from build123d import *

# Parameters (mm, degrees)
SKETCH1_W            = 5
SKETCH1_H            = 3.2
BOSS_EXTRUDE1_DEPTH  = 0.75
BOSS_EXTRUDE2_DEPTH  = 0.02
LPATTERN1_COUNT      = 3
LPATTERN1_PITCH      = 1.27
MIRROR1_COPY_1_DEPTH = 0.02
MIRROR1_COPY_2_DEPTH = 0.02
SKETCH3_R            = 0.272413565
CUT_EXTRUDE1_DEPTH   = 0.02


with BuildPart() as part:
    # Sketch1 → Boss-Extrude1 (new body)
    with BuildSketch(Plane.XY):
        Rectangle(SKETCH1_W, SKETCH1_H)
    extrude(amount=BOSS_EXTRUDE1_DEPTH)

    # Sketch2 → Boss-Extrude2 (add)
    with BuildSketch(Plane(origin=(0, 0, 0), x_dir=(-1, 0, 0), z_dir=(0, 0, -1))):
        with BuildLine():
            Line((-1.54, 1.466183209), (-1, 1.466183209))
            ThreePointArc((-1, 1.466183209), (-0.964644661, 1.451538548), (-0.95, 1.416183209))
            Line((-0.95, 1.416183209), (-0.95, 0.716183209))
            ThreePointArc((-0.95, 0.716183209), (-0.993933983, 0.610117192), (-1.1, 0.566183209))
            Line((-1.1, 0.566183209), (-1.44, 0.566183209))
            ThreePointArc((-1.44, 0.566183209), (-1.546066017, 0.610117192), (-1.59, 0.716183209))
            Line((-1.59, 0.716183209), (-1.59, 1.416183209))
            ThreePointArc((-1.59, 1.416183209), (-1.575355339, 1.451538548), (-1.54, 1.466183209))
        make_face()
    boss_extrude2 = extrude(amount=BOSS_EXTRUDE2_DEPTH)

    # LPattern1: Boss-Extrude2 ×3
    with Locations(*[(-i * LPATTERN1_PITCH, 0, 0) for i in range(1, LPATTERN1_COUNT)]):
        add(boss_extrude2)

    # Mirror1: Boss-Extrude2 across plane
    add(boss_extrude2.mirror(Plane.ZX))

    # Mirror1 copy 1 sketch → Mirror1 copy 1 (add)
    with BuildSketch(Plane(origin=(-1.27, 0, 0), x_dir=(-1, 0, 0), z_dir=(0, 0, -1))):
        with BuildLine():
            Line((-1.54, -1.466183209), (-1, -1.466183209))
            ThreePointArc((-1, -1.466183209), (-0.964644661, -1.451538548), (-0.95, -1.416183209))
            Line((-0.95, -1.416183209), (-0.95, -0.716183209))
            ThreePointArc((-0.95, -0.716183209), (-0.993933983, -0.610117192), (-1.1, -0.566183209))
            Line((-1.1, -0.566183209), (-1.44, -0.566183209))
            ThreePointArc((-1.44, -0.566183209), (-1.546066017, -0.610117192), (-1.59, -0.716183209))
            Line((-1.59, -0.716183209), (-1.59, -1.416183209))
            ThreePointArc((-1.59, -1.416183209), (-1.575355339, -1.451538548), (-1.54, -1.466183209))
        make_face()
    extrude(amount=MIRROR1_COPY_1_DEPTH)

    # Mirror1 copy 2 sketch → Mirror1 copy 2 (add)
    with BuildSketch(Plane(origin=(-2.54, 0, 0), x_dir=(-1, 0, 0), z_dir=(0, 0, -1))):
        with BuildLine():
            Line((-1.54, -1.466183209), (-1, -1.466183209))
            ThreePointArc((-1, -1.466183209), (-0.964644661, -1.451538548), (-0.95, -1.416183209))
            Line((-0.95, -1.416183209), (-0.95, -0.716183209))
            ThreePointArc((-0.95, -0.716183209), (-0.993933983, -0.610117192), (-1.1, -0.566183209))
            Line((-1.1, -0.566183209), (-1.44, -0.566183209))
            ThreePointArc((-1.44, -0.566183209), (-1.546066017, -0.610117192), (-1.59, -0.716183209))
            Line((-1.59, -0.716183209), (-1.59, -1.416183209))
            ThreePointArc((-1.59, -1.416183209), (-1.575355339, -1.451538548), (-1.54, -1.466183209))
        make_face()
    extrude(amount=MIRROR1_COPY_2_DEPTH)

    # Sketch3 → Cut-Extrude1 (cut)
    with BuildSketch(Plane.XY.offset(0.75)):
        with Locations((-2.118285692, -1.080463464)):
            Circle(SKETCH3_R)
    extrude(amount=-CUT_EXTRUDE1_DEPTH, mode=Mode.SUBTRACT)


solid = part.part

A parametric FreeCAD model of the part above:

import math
import FreeCAD as App
import Part
import Sketcher

V = App.Vector
Q = App.Units.Quantity

doc = App.newDocument("Part")
params = doc.addObject("Spreadsheet::Sheet", "Params")
for row, (alias, value) in enumerate([
    ("sketch1_width", "5 mm"),
    ("sketch1_height", "3.2 mm"),
    ("pad1_length", "0.75 mm"),
    ("sketch2_radius", "0.05 mm"),
    ("sketch2_radius2", "0.15 mm"),
    ("sketch2_height", "0.7 mm"),
    ("sketch2_width", "0.54 mm"),
    ("pad2_length", "0.02 mm"),
    ("linearpattern_pitch", "1.27 mm"),
    ("sketch3_radius", "0.05 mm"),
    ("sketch3_radius2", "0.15 mm"),
    ("sketch3_height", "0.7 mm"),
    ("sketch3_width", "0.54 mm"),
    ("pad3_length", "0.02 mm"),
    ("sketch4_radius", "0.05 mm"),
    ("sketch4_radius2", "0.15 mm"),
    ("sketch4_height", "0.7 mm"),
    ("sketch4_width", "0.54 mm"),
    ("pad4_length", "0.02 mm"),
    ("pocket1_length", "0.02 mm"),
], start=1):
    params.set(f"A{row}", alias)
    params.set(f"B{row}", "=" + value)
    params.setAlias(f"B{row}", alias)

body = doc.addObject("PartDesign::Body", "Body")

sketch1 = body.newObject("Sketcher::SketchObject", "Sketch")
sketch1.AttachmentSupport = (doc.getObject("XY_Plane"), [""])
sketch1.MapMode = "FlatFace"
sketch1.addGeometry(Part.LineSegment(V(-2.5, 1.6, 0), V(-2.5, -1.6, 0)), False)
sketch1.addGeometry(Part.LineSegment(V(-2.5, -1.6, 0), V(2.5, -1.6, 0)), False)
sketch1.addGeometry(Part.LineSegment(V(2.5, -1.6, 0), V(2.5, 1.6, 0)), False)
sketch1.addGeometry(Part.LineSegment(V(2.5, 1.6, 0), V(-2.5, 1.6, 0)), False)
sketch1.addConstraint(Sketcher.Constraint("Coincident", 0, 2, 1, 1))
sketch1.addConstraint(Sketcher.Constraint("Coincident", 1, 2, 2, 1))
sketch1.addConstraint(Sketcher.Constraint("Coincident", 2, 2, 3, 1))
sketch1.addConstraint(Sketcher.Constraint("Coincident", 3, 2, 0, 1))
sketch1.addConstraint(Sketcher.Constraint("Vertical", 0))
sketch1.addConstraint(Sketcher.Constraint("Horizontal", 1))
sketch1.addConstraint(Sketcher.Constraint("Vertical", 2))
sketch1.addConstraint(Sketcher.Constraint("Horizontal", 3))
sketch1.addConstraint(Sketcher.Constraint("Symmetric", 0, 2, 2, 2, -1, 1))
sketch1.addConstraint(Sketcher.Constraint("DistanceX", 1, 1, 1, 2, Q("5 mm")))
sketch1.addConstraint(Sketcher.Constraint("DistanceY", 0, 2, 0, 1, Q("3.2 mm")))
sketch1.setExpression("Constraints[9]", "Params.sketch1_width")
sketch1.setExpression("Constraints[10]", "Params.sketch1_height")
pad1 = body.newObject("PartDesign::Pad", "Pad")
pad1.Profile = sketch1
pad1.setExpression("Length", "Params.pad1_length")

sketch2 = body.newObject("Sketcher::SketchObject", "Sketch001")
sketch2.AttachmentSupport = (doc.getObject("XY_Plane"), [""])
sketch2.MapMode = "FlatFace"
sketch2.addGeometry(Part.LineSegment(V(1, 1.466183, 0), V(1.54, 1.466183, 0)), False)
sketch2.addGeometry(Part.ArcOfCircle(Part.Circle(V(1.54, 1.416183, 0), V(0, 0, 1), 0.05), math.radians(0), math.radians(90)), False)
sketch2.addGeometry(Part.LineSegment(V(1.59, 1.416183, 0), V(1.59, 0.716183, 0)), False)
sketch2.addGeometry(Part.ArcOfCircle(Part.Circle(V(1.44, 0.716183, 0), V(0, 0, 1), 0.15), math.radians(-90), math.radians(0)), False)
sketch2.addGeometry(Part.LineSegment(V(1.44, 0.566183, 0), V(1.1, 0.566183, 0)), False)
sketch2.addGeometry(Part.ArcOfCircle(Part.Circle(V(1.1, 0.716183, 0), V(0, 0, 1), 0.15), math.radians(-180), math.radians(-90)), False)
sketch2.addGeometry(Part.LineSegment(V(0.95, 0.716183, 0), V(0.95, 1.416183, 0)), False)
sketch2.addGeometry(Part.ArcOfCircle(Part.Circle(V(1, 1.416183, 0), V(0, 0, 1), 0.05), math.radians(90), math.radians(180)), False)
sketch2.addConstraint(Sketcher.Constraint("Tangent", 0, 2, 1, 2))
sketch2.addConstraint(Sketcher.Constraint("Tangent", 1, 1, 2, 1))
sketch2.addConstraint(Sketcher.Constraint("Tangent", 2, 2, 3, 2))
sketch2.addConstraint(Sketcher.Constraint("Tangent", 3, 1, 4, 1))
sketch2.addConstraint(Sketcher.Constraint("Tangent", 4, 2, 5, 2))
sketch2.addConstraint(Sketcher.Constraint("Tangent", 5, 1, 6, 1))
sketch2.addConstraint(Sketcher.Constraint("Tangent", 6, 2, 7, 2))
sketch2.addConstraint(Sketcher.Constraint("Tangent", 7, 1, 0, 1))
sketch2.addConstraint(Sketcher.Constraint("Horizontal", 0))
sketch2.addConstraint(Sketcher.Constraint("Vertical", 2))
sketch2.addConstraint(Sketcher.Constraint("Horizontal", 4))
sketch2.addConstraint(Sketcher.Constraint("Vertical", 6))
sketch2.addConstraint(Sketcher.Constraint("Equal", 3, 5))
sketch2.addConstraint(Sketcher.Constraint("Equal", 1, 7))
sketch2.addConstraint(Sketcher.Constraint("Radius", 1, Q("0.05 mm")))
sketch2.addConstraint(Sketcher.Constraint("Radius", 3, Q("0.15 mm")))
sketch2.addConstraint(Sketcher.Constraint("DistanceY", 2, 2, 2, 1, Q("0.7 mm")))
sketch2.addConstraint(Sketcher.Constraint("DistanceX", -1, 1, 7, 3, Q("1 mm")))
sketch2.addConstraint(Sketcher.Constraint("DistanceX", 0, 1, 0, 2, Q("0.54 mm")))
sketch2.addConstraint(Sketcher.Constraint("DistanceY", -1, 1, 1, 3, Q("1.416183 mm")))
sketch2.setExpression("Constraints[14]", "Params.sketch2_radius")
sketch2.setExpression("Constraints[15]", "Params.sketch2_radius2")
sketch2.setExpression("Constraints[16]", "Params.sketch2_height")
sketch2.setExpression("Constraints[18]", "Params.sketch2_width")
pad2 = body.newObject("PartDesign::Pad", "Pad001")
pad2.Profile = sketch2
pad2.setExpression("Length", "Params.pad2_length")
pad2.Reversed = True
doc.recompute()

linearpattern = body.newObject("PartDesign::LinearPattern", "LinearPattern")
linearpattern.Originals = [pad2]
linearpattern.Direction = (doc.getObject("X_Axis"), [""])
linearpattern.Mode = "offset"
linearpattern.setExpression("Offset", "Params.linearpattern_pitch")
linearpattern.Occurrences = 3
linearpattern.Reversed = True
body.Tip = linearpattern
doc.recompute()

mirrored = body.newObject("PartDesign::Mirrored", "Mirrored")
mirrored.Originals = [pad2]
mirrored.MirrorPlane = (doc.getObject("XZ_Plane"), [""])
body.Tip = mirrored

sketch3 = body.newObject("Sketcher::SketchObject", "Sketch002")
sketch3.AttachmentSupport = (doc.getObject("XY_Plane"), [""])
sketch3.MapMode = "FlatFace"
sketch3.addGeometry(Part.LineSegment(V(0.27, -1.466183, 0), V(-0.27, -1.466183, 0)), False)
sketch3.addGeometry(Part.ArcOfCircle(Part.Circle(V(-0.27, -1.416183, 0), V(0, 0, 1), 0.05), math.radians(180), math.radians(270)), False)
sketch3.addGeometry(Part.LineSegment(V(-0.32, -1.416183, 0), V(-0.32, -0.716183, 0)), False)
sketch3.addGeometry(Part.ArcOfCircle(Part.Circle(V(-0.17, -0.716183, 0), V(0, 0, 1), 0.15), math.radians(90), math.radians(180)), False)
sketch3.addGeometry(Part.LineSegment(V(-0.17, -0.566183, 0), V(0.17, -0.566183, 0)), False)
sketch3.addGeometry(Part.ArcOfCircle(Part.Circle(V(0.17, -0.716183, 0), V(0, 0, 1), 0.15), math.radians(0), math.radians(90)), False)
sketch3.addGeometry(Part.LineSegment(V(0.32, -0.716183, 0), V(0.32, -1.416183, 0)), False)
sketch3.addGeometry(Part.ArcOfCircle(Part.Circle(V(0.27, -1.416183, 0), V(0, 0, 1), 0.05), math.radians(-90), math.radians(0)), False)
sketch3.addConstraint(Sketcher.Constraint("Tangent", 0, 2, 1, 2))
sketch3.addConstraint(Sketcher.Constraint("Tangent", 1, 1, 2, 1))
sketch3.addConstraint(Sketcher.Constraint("Tangent", 2, 2, 3, 2))
sketch3.addConstraint(Sketcher.Constraint("Tangent", 3, 1, 4, 1))
sketch3.addConstraint(Sketcher.Constraint("Tangent", 4, 2, 5, 2))
sketch3.addConstraint(Sketcher.Constraint("Tangent", 5, 1, 6, 1))
sketch3.addConstraint(Sketcher.Constraint("Tangent", 6, 2, 7, 2))
sketch3.addConstraint(Sketcher.Constraint("Tangent", 7, 1, 0, 1))
sketch3.addConstraint(Sketcher.Constraint("Horizontal", 0))
sketch3.addConstraint(Sketcher.Constraint("Vertical", 2))
sketch3.addConstraint(Sketcher.Constraint("Horizontal", 4))
sketch3.addConstraint(Sketcher.Constraint("Vertical", 6))
sketch3.addConstraint(Sketcher.Constraint("Equal", 3, 5))
sketch3.addConstraint(Sketcher.Constraint("Equal", 1, 7))
sketch3.addConstraint(Sketcher.Constraint("Radius", 1, Q("0.05 mm")))
sketch3.addConstraint(Sketcher.Constraint("Radius", 3, Q("0.15 mm")))
sketch3.addConstraint(Sketcher.Constraint("DistanceY", 2, 1, 2, 2, Q("0.7 mm")))
sketch3.addConstraint(Sketcher.Constraint("DistanceX", 0, 2, 0, 1, Q("0.54 mm")))
sketch3.addConstraint(Sketcher.Constraint("DistanceX", 1, 3, -1, 1, Q("0.27 mm")))
sketch3.addConstraint(Sketcher.Constraint("DistanceY", 1, 3, -1, 1, Q("1.416183 mm")))
sketch3.setExpression("Constraints[14]", "Params.sketch3_radius")
sketch3.setExpression("Constraints[15]", "Params.sketch3_radius2")
sketch3.setExpression("Constraints[16]", "Params.sketch3_height")
sketch3.setExpression("Constraints[17]", "Params.sketch3_width")
pad3 = body.newObject("PartDesign::Pad", "Pad002")
pad3.Profile = sketch3
pad3.setExpression("Length", "Params.pad3_length")
pad3.Reversed = True

sketch4 = body.newObject("Sketcher::SketchObject", "Sketch003")
sketch4.AttachmentSupport = (doc.getObject("XY_Plane"), [""])
sketch4.MapMode = "FlatFace"
sketch4.addGeometry(Part.LineSegment(V(-1, -1.466183, 0), V(-1.54, -1.466183, 0)), False)
sketch4.addGeometry(Part.ArcOfCircle(Part.Circle(V(-1.54, -1.416183, 0), V(0, 0, 1), 0.05), math.radians(180), math.radians(270)), False)
sketch4.addGeometry(Part.LineSegment(V(-1.59, -1.416183, 0), V(-1.59, -0.716183, 0)), False)
sketch4.addGeometry(Part.ArcOfCircle(Part.Circle(V(-1.44, -0.716183, 0), V(0, 0, 1), 0.15), math.radians(90), math.radians(180)), False)
sketch4.addGeometry(Part.LineSegment(V(-1.44, -0.566183, 0), V(-1.1, -0.566183, 0)), False)
sketch4.addGeometry(Part.ArcOfCircle(Part.Circle(V(-1.1, -0.716183, 0), V(0, 0, 1), 0.15), math.radians(0), math.radians(90)), False)
sketch4.addGeometry(Part.LineSegment(V(-0.95, -0.716183, 0), V(-0.95, -1.416183, 0)), False)
sketch4.addGeometry(Part.ArcOfCircle(Part.Circle(V(-1, -1.416183, 0), V(0, 0, 1), 0.05), math.radians(-90), math.radians(0)), False)
sketch4.addConstraint(Sketcher.Constraint("Tangent", 0, 2, 1, 2))
sketch4.addConstraint(Sketcher.Constraint("Tangent", 1, 1, 2, 1))
sketch4.addConstraint(Sketcher.Constraint("Tangent", 2, 2, 3, 2))
sketch4.addConstraint(Sketcher.Constraint("Tangent", 3, 1, 4, 1))
sketch4.addConstraint(Sketcher.Constraint("Tangent", 4, 2, 5, 2))
sketch4.addConstraint(Sketcher.Constraint("Tangent", 5, 1, 6, 1))
sketch4.addConstraint(Sketcher.Constraint("Tangent", 6, 2, 7, 2))
sketch4.addConstraint(Sketcher.Constraint("Tangent", 7, 1, 0, 1))
sketch4.addConstraint(Sketcher.Constraint("Horizontal", 0))
sketch4.addConstraint(Sketcher.Constraint("Vertical", 2))
sketch4.addConstraint(Sketcher.Constraint("Horizontal", 4))
sketch4.addConstraint(Sketcher.Constraint("Vertical", 6))
sketch4.addConstraint(Sketcher.Constraint("Equal", 3, 5))
sketch4.addConstraint(Sketcher.Constraint("Equal", 1, 7))
sketch4.addConstraint(Sketcher.Constraint("Radius", 1, Q("0.05 mm")))
sketch4.addConstraint(Sketcher.Constraint("Radius", 3, Q("0.15 mm")))
sketch4.addConstraint(Sketcher.Constraint("DistanceY", 2, 1, 2, 2, Q("0.7 mm")))
sketch4.addConstraint(Sketcher.Constraint("DistanceX", 7, 3, -1, 1, Q("1 mm")))
sketch4.addConstraint(Sketcher.Constraint("DistanceX", 0, 2, 0, 1, Q("0.54 mm")))
sketch4.addConstraint(Sketcher.Constraint("DistanceY", 1, 3, -1, 1, Q("1.416183 mm")))
sketch4.setExpression("Constraints[14]", "Params.sketch4_radius")
sketch4.setExpression("Constraints[15]", "Params.sketch4_radius2")
sketch4.setExpression("Constraints[16]", "Params.sketch4_height")
sketch4.setExpression("Constraints[18]", "Params.sketch4_width")
pad4 = body.newObject("PartDesign::Pad", "Pad003")
pad4.Profile = sketch4
pad4.setExpression("Length", "Params.pad4_length")
pad4.Reversed = True

sketch5 = body.newObject("Sketcher::SketchObject", "Sketch004")
sketch5.AttachmentSupport = (doc.getObject("XY_Plane"), [""])
sketch5.MapMode = "FlatFace"
sketch5.AttachmentOffset = App.Placement(V(0, 0, 0.75), App.Rotation())
sketch5.addGeometry(Part.Circle(V(-2.118286, -1.080463, 0), V(0, 0, 1), 0.272414), False)
sketch5.addConstraint(Sketcher.Constraint("Diameter", 0, Q("0.544827 mm")))
sketch5.addConstraint(Sketcher.Constraint("DistanceX", 0, 3, -1, 1, Q("2.118286 mm")))
sketch5.addConstraint(Sketcher.Constraint("DistanceY", 0, 3, -1, 1, Q("1.080463 mm")))
pocket1 = body.newObject("PartDesign::Pocket", "Pocket")
pocket1.Profile = sketch5
pocket1.setExpression("Length", "Params.pocket1_length")

doc.recompute()
